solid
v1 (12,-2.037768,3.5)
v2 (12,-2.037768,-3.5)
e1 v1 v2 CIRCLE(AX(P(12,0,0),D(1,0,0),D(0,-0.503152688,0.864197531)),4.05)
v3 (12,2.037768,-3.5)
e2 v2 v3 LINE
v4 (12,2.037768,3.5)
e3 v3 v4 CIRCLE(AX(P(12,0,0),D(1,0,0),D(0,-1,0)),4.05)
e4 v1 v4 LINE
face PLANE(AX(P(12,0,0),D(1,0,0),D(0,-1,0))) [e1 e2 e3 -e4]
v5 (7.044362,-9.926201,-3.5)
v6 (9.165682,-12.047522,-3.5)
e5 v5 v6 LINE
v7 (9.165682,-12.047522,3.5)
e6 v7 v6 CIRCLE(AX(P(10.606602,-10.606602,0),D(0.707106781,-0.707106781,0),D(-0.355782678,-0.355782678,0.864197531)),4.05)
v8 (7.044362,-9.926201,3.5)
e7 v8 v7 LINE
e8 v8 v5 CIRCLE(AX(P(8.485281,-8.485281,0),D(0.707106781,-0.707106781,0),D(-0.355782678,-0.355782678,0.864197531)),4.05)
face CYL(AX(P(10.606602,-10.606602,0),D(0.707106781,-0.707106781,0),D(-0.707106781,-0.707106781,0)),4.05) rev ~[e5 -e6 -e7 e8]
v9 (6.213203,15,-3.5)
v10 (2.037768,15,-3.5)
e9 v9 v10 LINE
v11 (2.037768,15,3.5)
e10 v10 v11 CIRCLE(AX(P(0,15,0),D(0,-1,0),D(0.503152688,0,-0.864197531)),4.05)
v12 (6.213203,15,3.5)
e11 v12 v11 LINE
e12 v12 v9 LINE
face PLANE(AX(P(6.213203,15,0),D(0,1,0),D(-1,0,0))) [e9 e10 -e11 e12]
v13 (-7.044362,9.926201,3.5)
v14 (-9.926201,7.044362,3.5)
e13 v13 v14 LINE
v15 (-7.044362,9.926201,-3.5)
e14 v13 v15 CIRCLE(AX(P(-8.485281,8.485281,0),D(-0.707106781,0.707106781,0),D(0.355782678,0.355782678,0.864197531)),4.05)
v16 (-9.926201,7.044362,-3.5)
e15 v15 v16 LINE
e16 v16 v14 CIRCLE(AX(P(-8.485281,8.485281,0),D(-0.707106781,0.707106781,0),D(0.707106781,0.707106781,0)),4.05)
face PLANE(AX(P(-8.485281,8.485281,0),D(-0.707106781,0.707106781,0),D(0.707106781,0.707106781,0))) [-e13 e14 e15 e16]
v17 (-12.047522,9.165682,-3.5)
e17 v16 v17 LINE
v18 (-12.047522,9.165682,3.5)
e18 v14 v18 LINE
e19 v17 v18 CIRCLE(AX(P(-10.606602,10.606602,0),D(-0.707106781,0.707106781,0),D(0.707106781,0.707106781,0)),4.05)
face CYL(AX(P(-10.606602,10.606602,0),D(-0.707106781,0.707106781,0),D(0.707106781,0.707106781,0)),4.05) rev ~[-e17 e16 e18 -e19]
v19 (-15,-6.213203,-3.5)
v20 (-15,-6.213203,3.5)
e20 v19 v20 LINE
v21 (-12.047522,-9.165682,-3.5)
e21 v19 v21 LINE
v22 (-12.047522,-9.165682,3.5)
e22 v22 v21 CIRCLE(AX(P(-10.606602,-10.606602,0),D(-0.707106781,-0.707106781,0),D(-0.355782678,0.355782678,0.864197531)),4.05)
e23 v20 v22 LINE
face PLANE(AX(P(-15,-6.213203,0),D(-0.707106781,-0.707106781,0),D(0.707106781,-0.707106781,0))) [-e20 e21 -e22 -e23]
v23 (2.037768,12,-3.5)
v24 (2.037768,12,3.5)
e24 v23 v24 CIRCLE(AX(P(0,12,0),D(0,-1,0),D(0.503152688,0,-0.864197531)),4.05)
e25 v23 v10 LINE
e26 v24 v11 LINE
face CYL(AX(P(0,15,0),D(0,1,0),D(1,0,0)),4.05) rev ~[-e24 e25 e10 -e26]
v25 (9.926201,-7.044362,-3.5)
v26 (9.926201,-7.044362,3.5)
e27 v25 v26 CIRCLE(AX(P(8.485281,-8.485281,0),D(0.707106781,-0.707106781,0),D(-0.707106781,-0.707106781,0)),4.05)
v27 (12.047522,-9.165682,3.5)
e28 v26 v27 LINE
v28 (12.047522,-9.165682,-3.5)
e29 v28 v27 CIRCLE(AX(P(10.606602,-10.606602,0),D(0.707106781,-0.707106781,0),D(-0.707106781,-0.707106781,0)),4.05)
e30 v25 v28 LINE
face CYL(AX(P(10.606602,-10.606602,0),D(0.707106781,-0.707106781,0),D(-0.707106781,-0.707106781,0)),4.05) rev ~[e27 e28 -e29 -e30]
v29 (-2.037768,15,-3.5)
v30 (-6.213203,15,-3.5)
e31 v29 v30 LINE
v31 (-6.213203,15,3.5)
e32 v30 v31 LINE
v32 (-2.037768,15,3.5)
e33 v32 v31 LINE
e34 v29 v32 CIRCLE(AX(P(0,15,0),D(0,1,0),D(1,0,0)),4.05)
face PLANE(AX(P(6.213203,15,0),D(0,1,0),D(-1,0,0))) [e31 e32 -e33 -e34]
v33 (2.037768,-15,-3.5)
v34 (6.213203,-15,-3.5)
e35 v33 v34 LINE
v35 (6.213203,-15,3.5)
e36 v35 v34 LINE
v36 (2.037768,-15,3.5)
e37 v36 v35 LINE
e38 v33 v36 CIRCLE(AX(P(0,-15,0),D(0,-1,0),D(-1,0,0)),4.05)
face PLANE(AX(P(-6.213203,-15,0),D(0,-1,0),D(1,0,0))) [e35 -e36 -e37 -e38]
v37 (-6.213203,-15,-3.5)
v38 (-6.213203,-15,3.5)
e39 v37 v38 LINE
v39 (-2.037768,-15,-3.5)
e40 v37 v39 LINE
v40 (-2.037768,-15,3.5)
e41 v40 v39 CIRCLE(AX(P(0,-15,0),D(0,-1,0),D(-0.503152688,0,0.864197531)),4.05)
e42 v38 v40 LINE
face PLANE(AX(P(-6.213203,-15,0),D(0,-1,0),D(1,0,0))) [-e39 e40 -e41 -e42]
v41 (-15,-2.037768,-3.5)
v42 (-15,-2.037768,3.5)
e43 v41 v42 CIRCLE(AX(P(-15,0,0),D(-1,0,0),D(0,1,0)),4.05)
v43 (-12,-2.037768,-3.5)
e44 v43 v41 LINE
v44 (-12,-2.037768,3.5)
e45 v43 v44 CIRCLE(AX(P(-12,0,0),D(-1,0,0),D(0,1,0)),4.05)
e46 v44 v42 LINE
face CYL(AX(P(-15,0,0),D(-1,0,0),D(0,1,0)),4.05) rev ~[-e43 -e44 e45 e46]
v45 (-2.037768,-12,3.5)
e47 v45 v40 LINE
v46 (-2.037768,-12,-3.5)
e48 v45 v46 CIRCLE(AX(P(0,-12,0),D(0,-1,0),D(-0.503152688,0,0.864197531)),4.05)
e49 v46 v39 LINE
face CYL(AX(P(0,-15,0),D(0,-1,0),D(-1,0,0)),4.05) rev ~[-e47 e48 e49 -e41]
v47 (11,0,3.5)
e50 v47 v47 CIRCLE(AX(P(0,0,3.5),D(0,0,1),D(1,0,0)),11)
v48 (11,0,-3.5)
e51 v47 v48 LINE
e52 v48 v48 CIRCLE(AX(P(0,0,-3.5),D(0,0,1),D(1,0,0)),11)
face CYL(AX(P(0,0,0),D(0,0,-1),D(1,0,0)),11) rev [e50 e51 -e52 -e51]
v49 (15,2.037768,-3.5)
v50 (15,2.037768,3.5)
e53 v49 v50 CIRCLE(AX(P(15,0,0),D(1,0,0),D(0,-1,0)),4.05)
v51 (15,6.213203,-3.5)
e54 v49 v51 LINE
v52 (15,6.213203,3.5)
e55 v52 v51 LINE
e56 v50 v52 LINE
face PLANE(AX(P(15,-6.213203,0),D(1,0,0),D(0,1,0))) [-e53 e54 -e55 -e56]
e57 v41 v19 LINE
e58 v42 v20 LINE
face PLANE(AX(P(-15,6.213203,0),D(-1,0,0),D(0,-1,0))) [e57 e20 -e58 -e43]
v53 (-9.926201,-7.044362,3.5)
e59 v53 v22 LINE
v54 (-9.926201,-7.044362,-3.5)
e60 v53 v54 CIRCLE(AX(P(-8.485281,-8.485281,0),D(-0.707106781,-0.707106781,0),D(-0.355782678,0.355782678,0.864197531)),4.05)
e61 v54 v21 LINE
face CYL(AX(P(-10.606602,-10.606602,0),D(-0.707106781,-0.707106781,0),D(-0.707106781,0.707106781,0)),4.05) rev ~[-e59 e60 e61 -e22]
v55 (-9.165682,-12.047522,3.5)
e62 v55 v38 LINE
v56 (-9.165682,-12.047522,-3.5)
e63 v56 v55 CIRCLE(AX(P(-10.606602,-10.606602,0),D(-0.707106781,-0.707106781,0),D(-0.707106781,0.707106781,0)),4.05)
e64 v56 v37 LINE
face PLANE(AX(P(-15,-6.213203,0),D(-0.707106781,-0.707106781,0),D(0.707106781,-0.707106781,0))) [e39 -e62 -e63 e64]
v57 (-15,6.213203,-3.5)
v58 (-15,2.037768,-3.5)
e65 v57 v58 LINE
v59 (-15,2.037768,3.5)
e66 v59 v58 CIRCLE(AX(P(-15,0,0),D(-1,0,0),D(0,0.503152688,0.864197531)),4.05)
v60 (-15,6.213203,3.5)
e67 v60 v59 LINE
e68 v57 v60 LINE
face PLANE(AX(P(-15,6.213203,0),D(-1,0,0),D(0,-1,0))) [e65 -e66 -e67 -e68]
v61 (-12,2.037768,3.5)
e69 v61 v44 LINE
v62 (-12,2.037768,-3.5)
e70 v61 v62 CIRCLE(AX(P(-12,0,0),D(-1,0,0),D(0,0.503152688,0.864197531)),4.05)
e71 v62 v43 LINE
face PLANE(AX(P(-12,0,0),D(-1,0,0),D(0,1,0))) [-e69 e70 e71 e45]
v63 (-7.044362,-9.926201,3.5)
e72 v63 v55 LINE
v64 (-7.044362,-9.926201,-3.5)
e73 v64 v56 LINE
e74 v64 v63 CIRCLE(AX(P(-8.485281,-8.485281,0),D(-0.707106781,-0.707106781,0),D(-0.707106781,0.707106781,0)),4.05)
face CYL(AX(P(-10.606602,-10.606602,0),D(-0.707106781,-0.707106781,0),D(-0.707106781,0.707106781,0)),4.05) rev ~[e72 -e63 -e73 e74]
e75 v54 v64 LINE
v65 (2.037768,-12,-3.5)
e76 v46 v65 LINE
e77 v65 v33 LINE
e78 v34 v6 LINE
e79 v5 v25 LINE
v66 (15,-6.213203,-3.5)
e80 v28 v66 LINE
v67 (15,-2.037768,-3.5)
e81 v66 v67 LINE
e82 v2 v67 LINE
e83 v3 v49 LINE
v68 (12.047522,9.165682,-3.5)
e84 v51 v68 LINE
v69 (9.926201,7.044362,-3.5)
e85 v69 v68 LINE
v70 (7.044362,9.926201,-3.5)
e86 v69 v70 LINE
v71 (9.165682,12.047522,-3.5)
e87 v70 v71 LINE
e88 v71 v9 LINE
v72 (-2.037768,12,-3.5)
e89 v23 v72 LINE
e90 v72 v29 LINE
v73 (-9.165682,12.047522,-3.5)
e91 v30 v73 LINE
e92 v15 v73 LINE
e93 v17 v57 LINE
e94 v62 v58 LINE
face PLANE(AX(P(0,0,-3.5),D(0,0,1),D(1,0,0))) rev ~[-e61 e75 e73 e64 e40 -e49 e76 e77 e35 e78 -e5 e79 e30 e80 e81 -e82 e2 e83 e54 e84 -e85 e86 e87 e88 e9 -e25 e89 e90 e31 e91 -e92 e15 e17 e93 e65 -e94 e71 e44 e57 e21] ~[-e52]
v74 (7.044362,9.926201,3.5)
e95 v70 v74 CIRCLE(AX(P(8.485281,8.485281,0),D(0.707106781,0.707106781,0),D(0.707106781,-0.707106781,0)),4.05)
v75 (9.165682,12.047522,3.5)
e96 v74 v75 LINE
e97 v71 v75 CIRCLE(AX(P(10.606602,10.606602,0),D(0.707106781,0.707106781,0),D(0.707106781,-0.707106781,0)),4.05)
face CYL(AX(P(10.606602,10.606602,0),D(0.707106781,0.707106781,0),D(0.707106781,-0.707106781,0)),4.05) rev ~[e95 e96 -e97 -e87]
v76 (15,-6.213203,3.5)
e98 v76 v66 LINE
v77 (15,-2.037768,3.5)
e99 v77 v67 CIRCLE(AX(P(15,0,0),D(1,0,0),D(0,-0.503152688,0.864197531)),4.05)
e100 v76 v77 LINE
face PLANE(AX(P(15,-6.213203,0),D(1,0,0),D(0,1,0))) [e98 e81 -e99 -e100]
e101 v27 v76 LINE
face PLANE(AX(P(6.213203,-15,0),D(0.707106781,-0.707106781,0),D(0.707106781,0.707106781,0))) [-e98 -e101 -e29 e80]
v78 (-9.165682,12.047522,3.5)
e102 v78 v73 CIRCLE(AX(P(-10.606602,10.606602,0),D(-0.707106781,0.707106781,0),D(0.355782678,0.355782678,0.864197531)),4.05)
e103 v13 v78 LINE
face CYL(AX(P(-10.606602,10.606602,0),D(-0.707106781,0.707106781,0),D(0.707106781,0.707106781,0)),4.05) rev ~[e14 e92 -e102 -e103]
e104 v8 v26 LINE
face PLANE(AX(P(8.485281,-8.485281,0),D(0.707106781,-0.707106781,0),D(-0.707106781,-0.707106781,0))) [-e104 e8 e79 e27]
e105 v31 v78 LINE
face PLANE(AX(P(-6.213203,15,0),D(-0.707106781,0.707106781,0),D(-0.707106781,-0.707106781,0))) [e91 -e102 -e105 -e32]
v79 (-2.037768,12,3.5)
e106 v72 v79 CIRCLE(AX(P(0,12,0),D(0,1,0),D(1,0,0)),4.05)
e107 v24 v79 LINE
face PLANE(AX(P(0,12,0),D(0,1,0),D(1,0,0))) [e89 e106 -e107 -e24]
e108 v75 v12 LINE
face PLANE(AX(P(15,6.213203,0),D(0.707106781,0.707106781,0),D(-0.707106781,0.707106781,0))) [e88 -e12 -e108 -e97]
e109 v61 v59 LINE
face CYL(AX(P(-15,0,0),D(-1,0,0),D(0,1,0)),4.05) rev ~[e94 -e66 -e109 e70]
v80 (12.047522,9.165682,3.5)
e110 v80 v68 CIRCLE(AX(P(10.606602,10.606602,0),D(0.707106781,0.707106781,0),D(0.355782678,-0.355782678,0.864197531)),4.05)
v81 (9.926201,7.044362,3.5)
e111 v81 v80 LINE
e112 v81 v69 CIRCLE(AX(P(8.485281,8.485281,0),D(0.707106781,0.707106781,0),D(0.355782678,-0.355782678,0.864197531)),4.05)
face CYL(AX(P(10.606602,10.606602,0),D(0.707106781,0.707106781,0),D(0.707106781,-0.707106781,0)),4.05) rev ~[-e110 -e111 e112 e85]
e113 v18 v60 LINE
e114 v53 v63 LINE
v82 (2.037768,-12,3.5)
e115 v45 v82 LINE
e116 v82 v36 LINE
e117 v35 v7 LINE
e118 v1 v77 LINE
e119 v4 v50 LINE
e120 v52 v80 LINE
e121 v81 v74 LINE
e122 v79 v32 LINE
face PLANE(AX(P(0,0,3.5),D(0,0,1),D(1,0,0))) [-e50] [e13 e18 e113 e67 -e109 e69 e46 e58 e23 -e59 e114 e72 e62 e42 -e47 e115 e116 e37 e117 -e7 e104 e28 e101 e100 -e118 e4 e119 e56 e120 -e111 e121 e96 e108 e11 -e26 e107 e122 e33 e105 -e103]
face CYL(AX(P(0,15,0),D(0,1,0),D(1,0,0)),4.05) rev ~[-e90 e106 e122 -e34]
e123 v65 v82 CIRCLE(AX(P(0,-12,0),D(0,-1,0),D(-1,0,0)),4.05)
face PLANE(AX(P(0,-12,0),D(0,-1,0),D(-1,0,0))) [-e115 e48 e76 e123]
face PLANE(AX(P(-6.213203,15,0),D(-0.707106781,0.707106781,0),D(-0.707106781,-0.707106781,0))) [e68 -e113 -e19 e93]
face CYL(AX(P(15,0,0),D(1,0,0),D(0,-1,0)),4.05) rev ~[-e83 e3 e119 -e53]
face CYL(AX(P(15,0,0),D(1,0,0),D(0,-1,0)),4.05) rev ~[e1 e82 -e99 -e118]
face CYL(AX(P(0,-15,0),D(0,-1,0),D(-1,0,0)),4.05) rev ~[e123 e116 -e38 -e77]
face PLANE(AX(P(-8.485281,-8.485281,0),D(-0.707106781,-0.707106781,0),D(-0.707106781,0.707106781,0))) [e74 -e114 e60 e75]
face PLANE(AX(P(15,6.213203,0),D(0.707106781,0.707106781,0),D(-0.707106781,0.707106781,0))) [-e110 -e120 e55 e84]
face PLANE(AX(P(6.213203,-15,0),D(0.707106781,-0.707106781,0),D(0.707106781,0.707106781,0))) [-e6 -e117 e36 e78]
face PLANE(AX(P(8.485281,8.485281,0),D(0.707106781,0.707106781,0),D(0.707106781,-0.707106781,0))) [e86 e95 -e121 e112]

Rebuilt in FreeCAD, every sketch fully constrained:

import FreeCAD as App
import Part
import Sketcher

V = App.Vector

doc = App.newDocument("Part")
body = doc.addObject("PartDesign::Body", "Body")

# Sketch on XY plane
sketch1 = body.newObject("Sketcher::SketchObject", "Sketch")
sketch1.AttachmentSupport = (doc.getObject("XY_Plane"), [""])
sketch1.MapMode = "FlatFace"
sketch1.addGeometry([
    Part.LineSegment(V(6, 15, 0), V(-6, 15, 0)),  # 0
    Part.LineSegment(V(-6, 15, 0), V(-15, 6, 0)),  # 1
    Part.LineSegment(V(-15, 6, 0), V(-15, -6, 0)),  # 2
    Part.LineSegment(V(-15, -6, 0), V(-6, -15, 0)),  # 3
    Part.LineSegment(V(-6, -15, 0), V(6, -15, 0)),  # 4
    Part.LineSegment(V(6, -15, 0), V(15, -6, 0)),  # 5
    Part.LineSegment(V(15, -6, 0), V(15, 6, 0)),  # 6
    Part.LineSegment(V(15, 6, 0), V(6, 15, 0)),  # 7
    Part.Circle(V(0, 0, 0), V(0, 0, 1), 11),  # 8
], False)
sketch1.addConstraint([
    Sketcher.Constraint("Coincident", 0, 2, 1, 1),
    Sketcher.Constraint("Coincident", 1, 2, 2, 1),
    Sketcher.Constraint("Coincident", 2, 2, 3, 1),
    Sketcher.Constraint("Coincident", 3, 2, 4, 1),
    Sketcher.Constraint("Coincident", 4, 2, 5, 1),
    Sketcher.Constraint("Coincident", 5, 2, 6, 1),
    Sketcher.Constraint("Coincident", 6, 2, 7, 1),
    Sketcher.Constraint("Coincident", 7, 2, 0, 1),
    Sketcher.Constraint("Horizontal", 0),
    Sketcher.Constraint("Vertical", 2),
    Sketcher.Constraint("Horizontal", 4),
    Sketcher.Constraint("Vertical", 6),
    Sketcher.Constraint("Coincident", 8, 3, -1, 1),
    Sketcher.Constraint("Symmetric", 0, 2, 4, 2, -1, 1),
    Sketcher.Constraint("Symmetric", 1, 2, 5, 2, -1, 1),
    Sketcher.Constraint("Perpendicular", 1, 3),
    Sketcher.Constraint("Perpendicular", 5, 7),
    Sketcher.Constraint("Horizontal", 2, 2, 5, 2),
    Sketcher.Constraint("Horizontal", 1, 2, 6, 2),
    Sketcher.Constraint("Vertical", 0, 2, 3, 2),
    Sketcher.Constraint("Equal", 4, 2),
    Sketcher.Constraint("Diameter", 8, 22.0),
    Sketcher.Constraint("DistanceY", -1, 1, 0, 2, 15.0),
    Sketcher.Constraint("DistanceX", 0, 2, 0, 1, 12.426407),
])
pad1 = body.newObject("PartDesign::Pad", "Pad")
pad1.Profile = sketch1
pad1.Length = 7
pad1.Midplane = True

# Sketch on XZ plane
sketch2 = body.newObject("Sketcher::SketchObject", "Sketch001")
sketch2.AttachmentSupport = (doc.getObject("XZ_Plane"), [""])
sketch2.MapMode = "FlatFace"
sketch2.AttachmentOffset = App.Placement(V(0, 0, 15), App.Rotation())
sketch2.addGeometry(Part.Circle(V(0, 0, 0), V(0, 0, 1), 4), False)
sketch2.addConstraint([
    Sketcher.Constraint("Coincident", 0, 3, -1, 1),
    Sketcher.Constraint("Diameter", 0, 8.1),
])
pocket1 = body.newObject("PartDesign::Pocket", "Pocket")
pocket1.Profile = sketch2
pocket1.Length = 3
doc.recompute()

polarpattern = body.newObject("PartDesign::PolarPattern", "PolarPattern")
polarpattern.Originals = [pocket1]
polarpattern.Axis = (doc.getObject("Z_Axis"), [""])
polarpattern.Angle = 360
polarpattern.Occurrences = 8
body.Tip = polarpattern

doc.recompute()
